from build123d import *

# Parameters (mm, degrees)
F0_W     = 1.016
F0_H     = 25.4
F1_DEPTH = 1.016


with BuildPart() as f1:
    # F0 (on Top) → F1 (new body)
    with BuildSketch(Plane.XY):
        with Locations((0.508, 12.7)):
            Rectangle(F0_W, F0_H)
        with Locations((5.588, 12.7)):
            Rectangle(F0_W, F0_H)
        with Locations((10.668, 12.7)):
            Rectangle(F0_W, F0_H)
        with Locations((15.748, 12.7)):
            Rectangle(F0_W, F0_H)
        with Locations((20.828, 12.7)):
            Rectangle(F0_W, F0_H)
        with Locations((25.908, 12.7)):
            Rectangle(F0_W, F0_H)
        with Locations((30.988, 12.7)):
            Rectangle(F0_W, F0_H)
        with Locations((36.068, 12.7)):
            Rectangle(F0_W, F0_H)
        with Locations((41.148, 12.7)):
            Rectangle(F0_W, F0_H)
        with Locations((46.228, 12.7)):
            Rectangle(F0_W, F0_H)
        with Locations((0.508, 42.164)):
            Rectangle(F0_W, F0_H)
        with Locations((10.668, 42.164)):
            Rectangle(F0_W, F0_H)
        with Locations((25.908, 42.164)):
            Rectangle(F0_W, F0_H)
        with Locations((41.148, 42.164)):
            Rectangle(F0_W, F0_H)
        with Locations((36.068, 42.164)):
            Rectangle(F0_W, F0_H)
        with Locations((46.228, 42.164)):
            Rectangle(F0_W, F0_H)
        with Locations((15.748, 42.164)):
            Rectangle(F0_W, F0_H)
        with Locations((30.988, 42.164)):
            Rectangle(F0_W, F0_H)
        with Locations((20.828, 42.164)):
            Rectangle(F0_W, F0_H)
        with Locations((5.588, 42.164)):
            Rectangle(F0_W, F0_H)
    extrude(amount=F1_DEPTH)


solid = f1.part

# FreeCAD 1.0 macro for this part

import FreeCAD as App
import Part
import Sketcher
from FreeCAD import Vector
Q = App.Units.Quantity


def add_polygon(sketch, points):
    """Adds a closed chain of lines whose ends are joined by coincident constraints."""
    first, n = sketch.GeometryCount, len(points)
    for a, b in zip(points, points[1:] + points[:1]):
        sketch.addGeometry(Part.LineSegment(App.Vector(*a, 0), App.Vector(*b, 0)), False)
    for i in range(n):
        sketch.addConstraint(Sketcher.Constraint("Coincident", first + i, 2, first + (i + 1) % n, 1))

doc = App.newDocument("Part")
body = doc.addObject("PartDesign::Body", "Body")
body.AllowCompound = True

sketch1 = body.newObject("Sketcher::SketchObject", "Sketch")
sketch1.AttachmentSupport = (doc.getObject("XY_Plane"), [""])
sketch1.MapMode = "FlatFace"
add_polygon(sketch1, [(0, 25.4), (0, 0), (1, 0), (1, 25.4)])
add_polygon(sketch1, [(5.1, 25.4), (5.1, 0), (6.1, 0), (6.1, 25.4)])
add_polygon(sketch1, [(10.2, 25.4), (10.2, 0), (11.2, 0), (11.2, 25.4)])
add_polygon(sketch1, [(15.2, 25.4), (15.2, 0), (16.3, 0), (16.3, 25.4)])
add_polygon(sketch1, [(20.3, 25.4), (20.3, 0), (21.3, 0), (21.3, 25.4)])
add_polygon(sketch1, [(25.4, 25.4), (25.4, 0), (26.4, 0), (26.4, 25.4)])
add_polygon(sketch1, [(30.5, 25.4), (30.5, 0), (31.5, 0), (31.5, 25.4)])
add_polygon(sketch1, [(35.6, 25.4), (35.6, 0), (36.6, 0), (36.6, 25.4)])
add_polygon(sketch1, [(40.6, 25.4), (40.6, 0), (41.7, 0), (41.7, 25.4)])
add_polygon(sketch1, [(45.7, 25.4), (45.7, 0), (46.7, 0), (46.7, 25.4)])
add_polygon(sketch1, [(0, 54.9), (0, 29.5), (1, 29.5), (1, 54.9)])
add_polygon(sketch1, [(10.2, 54.9), (10.2, 29.5), (11.2, 29.5), (11.2, 54.9)])
add_polygon(sketch1, [(25.4, 54.9), (25.4, 29.5), (26.4, 29.5), (26.4, 54.9)])
add_polygon(sketch1, [(40.6, 54.9), (40.6, 29.5), (41.7, 29.5), (41.7, 54.9)])
add_polygon(sketch1, [(35.6, 54.9), (35.6, 29.5), (36.6, 29.5), (36.6, 54.9)])
add_polygon(sketch1, [(45.7, 54.9), (45.7, 29.5), (46.7, 29.5), (46.7, 54.9)])
add_polygon(sketch1, [(15.2, 54.9), (15.2, 29.5), (16.3, 29.5), (16.3, 54.9)])
add_polygon(sketch1, [(30.5, 54.9), (30.5, 29.5), (31.5, 29.5), (31.5, 54.9)])
add_polygon(sketch1, [(20.3, 54.9), (20.3, 29.5), (21.3, 29.5), (21.3, 54.9)])
add_polygon(sketch1, [(5.1, 54.9), (5.1, 29.5), (6.1, 29.5), (6.1, 54.9)])
sketch1.addConstraint(Sketcher.Constraint("Vertical", 0))
sketch1.addConstraint(Sketcher.Constraint("Horizontal", 1))
sketch1.addConstraint(Sketcher.Constraint("Vertical", 2))
sketch1.addConstraint(Sketcher.Constraint("Horizontal", 3))
sketch1.addConstraint(Sketcher.Constraint("Vertical", 4))
sketch1.addConstraint(Sketcher.Constraint("Horizontal", 5))
sketch1.addConstraint(Sketcher.Constraint("Vertical", 6))
sketch1.addConstraint(Sketcher.Constraint("Horizontal", 7))
sketch1.addConstraint(Sketcher.Constraint("Vertical", 8))
sketch1.addConstraint(Sketcher.Constraint("Horizontal", 9))
sketch1.addConstraint(Sketcher.Constraint("Vertical", 10))
sketch1.addConstraint(Sketcher.Constraint("Horizontal", 11))
sketch1.addConstraint(Sketcher.Constraint("Vertical", 12))
sketch1.addConstraint(Sketcher.Constraint("Horizontal", 13))
sketch1.addConstraint(Sketcher.Constraint("Vertical", 14))
sketch1.addConstraint(Sketcher.Constraint("Horizontal", 15))
sketch1.addConstraint(Sketcher.Constraint("Vertical", 16))
sketch1.addConstraint(Sketcher.Constraint("Horizontal", 17))
sketch1.addConstraint(Sketcher.Constraint("Vertical", 18))
sketch1.addConstraint(Sketcher.Constraint("Horizontal", 19))
sketch1.addConstraint(Sketcher.Constraint("Vertical", 20))
sketch1.addConstraint(Sketcher.Constraint("Horizontal", 21))
sketch1.addConstraint(Sketcher.Constraint("Vertical", 22))
sketch1.addConstraint(Sketcher.Constraint("Horizontal", 23))
sketch1.addConstraint(Sketcher.Constraint("Vertical", 24))
sketch1.addConstraint(Sketcher.Constraint("Horizontal", 25))
sketch1.addConstraint(Sketcher.Constraint("Vertical", 26))
sketch1.addConstraint(Sketcher.Constraint("Horizontal", 27))
sketch1.addConstraint(Sketcher.Constraint("Vertical", 28))
sketch1.addConstraint(Sketcher.Constraint("Horizontal", 29))
sketch1.addConstraint(Sketcher.Constraint("Vertical", 30))
sketch1.addConstraint(Sketcher.Constraint("Horizontal", 31))
sketch1.addConstraint(Sketcher.Constraint("Vertical", 32))
sketch1.addConstraint(Sketcher.Constraint("Horizontal", 33))
sketch1.addConstraint(Sketcher.Constraint("Vertical", 34))
sketch1.addConstraint(Sketcher.Constraint("Horizontal", 35))
sketch1.addConstraint(Sketcher.Constraint("Vertical", 36))
sketch1.addConstraint(Sketcher.Constraint("Horizontal", 37))
sketch1.addConstraint(Sketcher.Constraint("Vertical", 38))
sketch1.addConstraint(Sketcher.Constraint("Horizontal", 39))
sketch1.addConstraint(Sketcher.Constraint("Vertical", 40))
sketch1.addConstraint(Sketcher.Constraint("Horizontal", 41))
sketch1.addConstraint(Sketcher.Constraint("Vertical", 42))
sketch1.addConstraint(Sketcher.Constraint("Horizontal", 43))
sketch1.addConstraint(Sketcher.Constraint("Vertical", 44))
sketch1.addConstraint(Sketcher.Constraint("Horizontal", 45))
sketch1.addConstraint(Sketcher.Constraint("Vertical", 46))
sketch1.addConstraint(Sketcher.Constraint("Horizontal", 47))
sketch1.addConstraint(Sketcher.Constraint("Vertical", 48))
sketch1.addConstraint(Sketcher.Constraint("Horizontal", 49))
sketch1.addConstraint(Sketcher.Constraint("Vertical", 50))
sketch1.addConstraint(Sketcher.Constraint("Horizontal", 51))
sketch1.addConstraint(Sketcher.Constraint("Vertical", 52))
sketch1.addConstraint(Sketcher.Constraint("Horizontal", 53))
sketch1.addConstraint(Sketcher.Constraint("Vertical", 54))
sketch1.addConstraint(Sketcher.Constraint("Horizontal", 55))
sketch1.addConstraint(Sketcher.Constraint("Vertical", 56))
sketch1.addConstraint(Sketcher.Constraint("Horizontal", 57))
sketch1.addConstraint(Sketcher.Constraint("Vertical", 58))
sketch1.addConstraint(Sketcher.Constraint("Horizontal", 59))
sketch1.addConstraint(Sketcher.Constraint("Vertical", 60))
sketch1.addConstraint(Sketcher.Constraint("Horizontal", 61))
sketch1.addConstraint(Sketcher.Constraint("Vertical", 62))
sketch1.addConstraint(Sketcher.Constraint("Horizontal", 63))
sketch1.addConstraint(Sketcher.Constraint("Vertical", 64))
sketch1.addConstraint(Sketcher.Constraint("Horizontal", 65))
sketch1.addConstraint(Sketcher.Constraint("Vertical", 66))
sketch1.addConstraint(Sketcher.Constraint("Horizontal", 67))
sketch1.addConstraint(Sketcher.Constraint("Vertical", 68))
sketch1.addConstraint(Sketcher.Constraint("Horizontal", 69))
sketch1.addConstraint(Sketcher.Constraint("Vertical", 70))
sketch1.addConstraint(Sketcher.Constraint("Horizontal", 71))
sketch1.addConstraint(Sketcher.Constraint("Vertical", 72))
sketch1.addConstraint(Sketcher.Constraint("Horizontal", 73))
sketch1.addConstraint(Sketcher.Constraint("Vertical", 74))
sketch1.addConstraint(Sketcher.Constraint("Horizontal", 75))
sketch1.addConstraint(Sketcher.Constraint("Vertical", 76))
sketch1.addConstraint(Sketcher.Constraint("Horizontal", 77))
sketch1.addConstraint(Sketcher.Constraint("Vertical", 78))
sketch1.addConstraint(Sketcher.Constraint("Horizontal", 79))
sketch1.addConstraint(Sketcher.Constraint("Coincident", 0, 2, -1, 1))
sketch1.addConstraint(Sketcher.Constraint("PointOnObject", 4, 2, -1))
sketch1.addConstraint(Sketcher.Constraint("PointOnObject", 8, 2, -1))
sketch1.addConstraint(Sketcher.Constraint("PointOnObject", 12, 2, -1))
sketch1.addConstraint(Sketcher.Constraint("PointOnObject", 16, 2, -1))
sketch1.addConstraint(Sketcher.Constraint("PointOnObject", 20, 2, -1))
sketch1.addConstraint(Sketcher.Constraint("PointOnObject", 24, 2, -1))
sketch1.addConstraint(Sketcher.Constraint("PointOnObject", 28, 2, -1))
sketch1.addConstraint(Sketcher.Constraint("PointOnObject", 32, 2, -1))
sketch1.addConstraint(Sketcher.Constraint("PointOnObject", 36, 2, -1))
sketch1.addConstraint(Sketcher.Constraint("PointOnObject", 40, 2, -2))
sketch1.addConstraint(Sketcher.Constraint("Horizontal", 3, 2, 6, 2))
sketch1.addConstraint(Sketcher.Constraint("Horizontal", 7, 2, 10, 2))
sketch1.addConstraint(Sketcher.Constraint("Horizontal", 11, 2, 14, 2))
sketch1.addConstraint(Sketcher.Constraint("Horizontal", 15, 2, 18, 2))
sketch1.addConstraint(Sketcher.Constraint("Horizontal", 19, 2, 22, 2))
sketch1.addConstraint(Sketcher.Constraint("Horizontal", 23, 2, 26, 2))
sketch1.addConstraint(Sketcher.Constraint("Horizontal", 27, 2, 30, 2))
sketch1.addConstraint(Sketcher.Constraint("Horizontal", 31, 2, 34, 2))
sketch1.addConstraint(Sketcher.Constraint("Horizontal", 35, 2, 38, 2))
sketch1.addConstraint(Sketcher.Constraint("Horizontal", 41, 2, 44, 2))
sketch1.addConstraint(Sketcher.Constraint("Horizontal", 43, 2, 46, 2))
sketch1.addConstraint(Sketcher.Constraint("Horizontal", 45, 2, 48, 2))
sketch1.addConstraint(Sketcher.Constraint("Horizontal", 47, 2, 50, 2))
sketch1.addConstraint(Sketcher.Constraint("Horizontal", 49, 2, 52, 2))
sketch1.addConstraint(Sketcher.Constraint("Horizontal", 51, 2, 54, 2))
sketch1.addConstraint(Sketcher.Constraint("Horizontal", 53, 2, 56, 2))
sketch1.addConstraint(Sketcher.Constraint("Horizontal", 55, 2, 58, 2))
sketch1.addConstraint(Sketcher.Constraint("Horizontal", 57, 2, 60, 2))
sketch1.addConstraint(Sketcher.Constraint("Horizontal", 59, 2, 62, 2))
sketch1.addConstraint(Sketcher.Constraint("Horizontal", 61, 2, 64, 2))
sketch1.addConstraint(Sketcher.Constraint("Horizontal", 63, 2, 66, 2))
sketch1.addConstraint(Sketcher.Constraint("Horizontal", 65, 2, 68, 2))
sketch1.addConstraint(Sketcher.Constraint("Horizontal", 67, 2, 70, 2))
sketch1.addConstraint(Sketcher.Constraint("Horizontal", 69, 2, 72, 2))
sketch1.addConstraint(Sketcher.Constraint("Horizontal", 71, 2, 74, 2))
sketch1.addConstraint(Sketcher.Constraint("Horizontal", 73, 2, 76, 2))
sketch1.addConstraint(Sketcher.Constraint("Horizontal", 75, 2, 78, 2))
sketch1.addConstraint(Sketcher.Constraint("Vertical", 2, 2, 41, 2))
sketch1.addConstraint(Sketcher.Constraint("Vertical", 11, 2, 44, 2))
sketch1.addConstraint(Sketcher.Constraint("Vertical", 10, 2, 45, 2))
sketch1.addConstraint(Sketcher.Constraint("Vertical", 23, 2, 48, 2))
sketch1.addConstraint(Sketcher.Constraint("Vertical", 22, 2, 49, 2))
sketch1.addConstraint(Sketcher.Constraint("Vertical", 35, 2, 52, 2))
sketch1.addConstraint(Sketcher.Constraint("Vertical", 34, 2, 53, 2))
sketch1.addConstraint(Sketcher.Constraint("Vertical", 31, 2, 56, 2))
sketch1.addConstraint(Sketcher.Constraint("Vertical", 30, 2, 57, 2))
sketch1.addConstraint(Sketcher.Constraint("Vertical", 39, 2, 60, 2))
sketch1.addConstraint(Sketcher.Constraint("Vertical", 38, 2, 61, 2))
sketch1.addConstraint(Sketcher.Constraint("Vertical", 15, 2, 64, 2))
sketch1.addConstraint(Sketcher.Constraint("Vertical", 14, 2, 65, 2))
sketch1.addConstraint(Sketcher.Constraint("Vertical", 27, 2, 68, 2))
sketch1.addConstraint(Sketcher.Constraint("Vertical", 26, 2, 69, 2))
sketch1.addConstraint(Sketcher.Constraint("Vertical", 19, 2, 72, 2))
sketch1.addConstraint(Sketcher.Constraint("Vertical", 18, 2, 73, 2))
sketch1.addConstraint(Sketcher.Constraint("Vertical", 7, 2, 76, 2))
sketch1.addConstraint(Sketcher.Constraint("Vertical", 6, 2, 77, 2))
sketch1.addConstraint(Sketcher.Constraint("Equal", 3, 5))
sketch1.addConstraint(Sketcher.Constraint("Equal", 7, 9))
sketch1.addConstraint(Sketcher.Constraint("Equal", 11, 13))
sketch1.addConstraint(Sketcher.Constraint("Equal", 15, 17))
sketch1.addConstraint(Sketcher.Constraint("Equal", 19, 21))
sketch1.addConstraint(Sketcher.Constraint("Equal", 23, 25))
sketch1.addConstraint(Sketcher.Constraint("Equal", 27, 29))
sketch1.addConstraint(Sketcher.Constraint("Equal", 31, 33))
sketch1.addConstraint(Sketcher.Constraint("Equal", 35, 37))
sketch1.addConstraint(Sketcher.Constraint("Equal", 38, 40))
sketch1.addConstraint(Sketcher.Constraint("DistanceY", 0, 2, 0, 1, Q("1 in")))
sketch1.addConstraint(Sketcher.Constraint("DistanceX", -1, 1, 20, 2, Q("1 in")))
sketch1.addConstraint(Sketcher.Constraint("DistanceX", 1, 1, 1, 2, Q("0.04 in")))
sketch1.addConstraint(Sketcher.Constraint("DistanceX", -1, 1, 4, 2, Q("0.2 in")))
sketch1.addConstraint(Sketcher.Constraint("DistanceX", -1, 1, 8, 2, Q("0.4 in")))
sketch1.addConstraint(Sketcher.Constraint("DistanceX", -1, 1, 12, 2, Q("0.6 in")))
sketch1.addConstraint(Sketcher.Constraint("DistanceX", -1, 1, 16, 2, Q("0.8 in")))
sketch1.addConstraint(Sketcher.Constraint("DistanceX", -1, 1, 24, 2, Q("1.2 in")))
sketch1.addConstraint(Sketcher.Constraint("DistanceX", -1, 1, 28, 2, Q("1.4 in")))
sketch1.addConstraint(Sketcher.Constraint("DistanceX", -1, 1, 32, 2, Q("1.6 in")))
sketch1.addConstraint(Sketcher.Constraint("DistanceX", -1, 1, 36, 2, Q("1.8 in")))
sketch1.addConstraint(Sketcher.Constraint("DistanceY", -1, 1, 40, 2, Q("1.16 in")))
pad1 = body.newObject("PartDesign::Pad", "Pad")
pad1.Profile = sketch1
pad1.Length = Q("0.04 in")

doc.recompute()
